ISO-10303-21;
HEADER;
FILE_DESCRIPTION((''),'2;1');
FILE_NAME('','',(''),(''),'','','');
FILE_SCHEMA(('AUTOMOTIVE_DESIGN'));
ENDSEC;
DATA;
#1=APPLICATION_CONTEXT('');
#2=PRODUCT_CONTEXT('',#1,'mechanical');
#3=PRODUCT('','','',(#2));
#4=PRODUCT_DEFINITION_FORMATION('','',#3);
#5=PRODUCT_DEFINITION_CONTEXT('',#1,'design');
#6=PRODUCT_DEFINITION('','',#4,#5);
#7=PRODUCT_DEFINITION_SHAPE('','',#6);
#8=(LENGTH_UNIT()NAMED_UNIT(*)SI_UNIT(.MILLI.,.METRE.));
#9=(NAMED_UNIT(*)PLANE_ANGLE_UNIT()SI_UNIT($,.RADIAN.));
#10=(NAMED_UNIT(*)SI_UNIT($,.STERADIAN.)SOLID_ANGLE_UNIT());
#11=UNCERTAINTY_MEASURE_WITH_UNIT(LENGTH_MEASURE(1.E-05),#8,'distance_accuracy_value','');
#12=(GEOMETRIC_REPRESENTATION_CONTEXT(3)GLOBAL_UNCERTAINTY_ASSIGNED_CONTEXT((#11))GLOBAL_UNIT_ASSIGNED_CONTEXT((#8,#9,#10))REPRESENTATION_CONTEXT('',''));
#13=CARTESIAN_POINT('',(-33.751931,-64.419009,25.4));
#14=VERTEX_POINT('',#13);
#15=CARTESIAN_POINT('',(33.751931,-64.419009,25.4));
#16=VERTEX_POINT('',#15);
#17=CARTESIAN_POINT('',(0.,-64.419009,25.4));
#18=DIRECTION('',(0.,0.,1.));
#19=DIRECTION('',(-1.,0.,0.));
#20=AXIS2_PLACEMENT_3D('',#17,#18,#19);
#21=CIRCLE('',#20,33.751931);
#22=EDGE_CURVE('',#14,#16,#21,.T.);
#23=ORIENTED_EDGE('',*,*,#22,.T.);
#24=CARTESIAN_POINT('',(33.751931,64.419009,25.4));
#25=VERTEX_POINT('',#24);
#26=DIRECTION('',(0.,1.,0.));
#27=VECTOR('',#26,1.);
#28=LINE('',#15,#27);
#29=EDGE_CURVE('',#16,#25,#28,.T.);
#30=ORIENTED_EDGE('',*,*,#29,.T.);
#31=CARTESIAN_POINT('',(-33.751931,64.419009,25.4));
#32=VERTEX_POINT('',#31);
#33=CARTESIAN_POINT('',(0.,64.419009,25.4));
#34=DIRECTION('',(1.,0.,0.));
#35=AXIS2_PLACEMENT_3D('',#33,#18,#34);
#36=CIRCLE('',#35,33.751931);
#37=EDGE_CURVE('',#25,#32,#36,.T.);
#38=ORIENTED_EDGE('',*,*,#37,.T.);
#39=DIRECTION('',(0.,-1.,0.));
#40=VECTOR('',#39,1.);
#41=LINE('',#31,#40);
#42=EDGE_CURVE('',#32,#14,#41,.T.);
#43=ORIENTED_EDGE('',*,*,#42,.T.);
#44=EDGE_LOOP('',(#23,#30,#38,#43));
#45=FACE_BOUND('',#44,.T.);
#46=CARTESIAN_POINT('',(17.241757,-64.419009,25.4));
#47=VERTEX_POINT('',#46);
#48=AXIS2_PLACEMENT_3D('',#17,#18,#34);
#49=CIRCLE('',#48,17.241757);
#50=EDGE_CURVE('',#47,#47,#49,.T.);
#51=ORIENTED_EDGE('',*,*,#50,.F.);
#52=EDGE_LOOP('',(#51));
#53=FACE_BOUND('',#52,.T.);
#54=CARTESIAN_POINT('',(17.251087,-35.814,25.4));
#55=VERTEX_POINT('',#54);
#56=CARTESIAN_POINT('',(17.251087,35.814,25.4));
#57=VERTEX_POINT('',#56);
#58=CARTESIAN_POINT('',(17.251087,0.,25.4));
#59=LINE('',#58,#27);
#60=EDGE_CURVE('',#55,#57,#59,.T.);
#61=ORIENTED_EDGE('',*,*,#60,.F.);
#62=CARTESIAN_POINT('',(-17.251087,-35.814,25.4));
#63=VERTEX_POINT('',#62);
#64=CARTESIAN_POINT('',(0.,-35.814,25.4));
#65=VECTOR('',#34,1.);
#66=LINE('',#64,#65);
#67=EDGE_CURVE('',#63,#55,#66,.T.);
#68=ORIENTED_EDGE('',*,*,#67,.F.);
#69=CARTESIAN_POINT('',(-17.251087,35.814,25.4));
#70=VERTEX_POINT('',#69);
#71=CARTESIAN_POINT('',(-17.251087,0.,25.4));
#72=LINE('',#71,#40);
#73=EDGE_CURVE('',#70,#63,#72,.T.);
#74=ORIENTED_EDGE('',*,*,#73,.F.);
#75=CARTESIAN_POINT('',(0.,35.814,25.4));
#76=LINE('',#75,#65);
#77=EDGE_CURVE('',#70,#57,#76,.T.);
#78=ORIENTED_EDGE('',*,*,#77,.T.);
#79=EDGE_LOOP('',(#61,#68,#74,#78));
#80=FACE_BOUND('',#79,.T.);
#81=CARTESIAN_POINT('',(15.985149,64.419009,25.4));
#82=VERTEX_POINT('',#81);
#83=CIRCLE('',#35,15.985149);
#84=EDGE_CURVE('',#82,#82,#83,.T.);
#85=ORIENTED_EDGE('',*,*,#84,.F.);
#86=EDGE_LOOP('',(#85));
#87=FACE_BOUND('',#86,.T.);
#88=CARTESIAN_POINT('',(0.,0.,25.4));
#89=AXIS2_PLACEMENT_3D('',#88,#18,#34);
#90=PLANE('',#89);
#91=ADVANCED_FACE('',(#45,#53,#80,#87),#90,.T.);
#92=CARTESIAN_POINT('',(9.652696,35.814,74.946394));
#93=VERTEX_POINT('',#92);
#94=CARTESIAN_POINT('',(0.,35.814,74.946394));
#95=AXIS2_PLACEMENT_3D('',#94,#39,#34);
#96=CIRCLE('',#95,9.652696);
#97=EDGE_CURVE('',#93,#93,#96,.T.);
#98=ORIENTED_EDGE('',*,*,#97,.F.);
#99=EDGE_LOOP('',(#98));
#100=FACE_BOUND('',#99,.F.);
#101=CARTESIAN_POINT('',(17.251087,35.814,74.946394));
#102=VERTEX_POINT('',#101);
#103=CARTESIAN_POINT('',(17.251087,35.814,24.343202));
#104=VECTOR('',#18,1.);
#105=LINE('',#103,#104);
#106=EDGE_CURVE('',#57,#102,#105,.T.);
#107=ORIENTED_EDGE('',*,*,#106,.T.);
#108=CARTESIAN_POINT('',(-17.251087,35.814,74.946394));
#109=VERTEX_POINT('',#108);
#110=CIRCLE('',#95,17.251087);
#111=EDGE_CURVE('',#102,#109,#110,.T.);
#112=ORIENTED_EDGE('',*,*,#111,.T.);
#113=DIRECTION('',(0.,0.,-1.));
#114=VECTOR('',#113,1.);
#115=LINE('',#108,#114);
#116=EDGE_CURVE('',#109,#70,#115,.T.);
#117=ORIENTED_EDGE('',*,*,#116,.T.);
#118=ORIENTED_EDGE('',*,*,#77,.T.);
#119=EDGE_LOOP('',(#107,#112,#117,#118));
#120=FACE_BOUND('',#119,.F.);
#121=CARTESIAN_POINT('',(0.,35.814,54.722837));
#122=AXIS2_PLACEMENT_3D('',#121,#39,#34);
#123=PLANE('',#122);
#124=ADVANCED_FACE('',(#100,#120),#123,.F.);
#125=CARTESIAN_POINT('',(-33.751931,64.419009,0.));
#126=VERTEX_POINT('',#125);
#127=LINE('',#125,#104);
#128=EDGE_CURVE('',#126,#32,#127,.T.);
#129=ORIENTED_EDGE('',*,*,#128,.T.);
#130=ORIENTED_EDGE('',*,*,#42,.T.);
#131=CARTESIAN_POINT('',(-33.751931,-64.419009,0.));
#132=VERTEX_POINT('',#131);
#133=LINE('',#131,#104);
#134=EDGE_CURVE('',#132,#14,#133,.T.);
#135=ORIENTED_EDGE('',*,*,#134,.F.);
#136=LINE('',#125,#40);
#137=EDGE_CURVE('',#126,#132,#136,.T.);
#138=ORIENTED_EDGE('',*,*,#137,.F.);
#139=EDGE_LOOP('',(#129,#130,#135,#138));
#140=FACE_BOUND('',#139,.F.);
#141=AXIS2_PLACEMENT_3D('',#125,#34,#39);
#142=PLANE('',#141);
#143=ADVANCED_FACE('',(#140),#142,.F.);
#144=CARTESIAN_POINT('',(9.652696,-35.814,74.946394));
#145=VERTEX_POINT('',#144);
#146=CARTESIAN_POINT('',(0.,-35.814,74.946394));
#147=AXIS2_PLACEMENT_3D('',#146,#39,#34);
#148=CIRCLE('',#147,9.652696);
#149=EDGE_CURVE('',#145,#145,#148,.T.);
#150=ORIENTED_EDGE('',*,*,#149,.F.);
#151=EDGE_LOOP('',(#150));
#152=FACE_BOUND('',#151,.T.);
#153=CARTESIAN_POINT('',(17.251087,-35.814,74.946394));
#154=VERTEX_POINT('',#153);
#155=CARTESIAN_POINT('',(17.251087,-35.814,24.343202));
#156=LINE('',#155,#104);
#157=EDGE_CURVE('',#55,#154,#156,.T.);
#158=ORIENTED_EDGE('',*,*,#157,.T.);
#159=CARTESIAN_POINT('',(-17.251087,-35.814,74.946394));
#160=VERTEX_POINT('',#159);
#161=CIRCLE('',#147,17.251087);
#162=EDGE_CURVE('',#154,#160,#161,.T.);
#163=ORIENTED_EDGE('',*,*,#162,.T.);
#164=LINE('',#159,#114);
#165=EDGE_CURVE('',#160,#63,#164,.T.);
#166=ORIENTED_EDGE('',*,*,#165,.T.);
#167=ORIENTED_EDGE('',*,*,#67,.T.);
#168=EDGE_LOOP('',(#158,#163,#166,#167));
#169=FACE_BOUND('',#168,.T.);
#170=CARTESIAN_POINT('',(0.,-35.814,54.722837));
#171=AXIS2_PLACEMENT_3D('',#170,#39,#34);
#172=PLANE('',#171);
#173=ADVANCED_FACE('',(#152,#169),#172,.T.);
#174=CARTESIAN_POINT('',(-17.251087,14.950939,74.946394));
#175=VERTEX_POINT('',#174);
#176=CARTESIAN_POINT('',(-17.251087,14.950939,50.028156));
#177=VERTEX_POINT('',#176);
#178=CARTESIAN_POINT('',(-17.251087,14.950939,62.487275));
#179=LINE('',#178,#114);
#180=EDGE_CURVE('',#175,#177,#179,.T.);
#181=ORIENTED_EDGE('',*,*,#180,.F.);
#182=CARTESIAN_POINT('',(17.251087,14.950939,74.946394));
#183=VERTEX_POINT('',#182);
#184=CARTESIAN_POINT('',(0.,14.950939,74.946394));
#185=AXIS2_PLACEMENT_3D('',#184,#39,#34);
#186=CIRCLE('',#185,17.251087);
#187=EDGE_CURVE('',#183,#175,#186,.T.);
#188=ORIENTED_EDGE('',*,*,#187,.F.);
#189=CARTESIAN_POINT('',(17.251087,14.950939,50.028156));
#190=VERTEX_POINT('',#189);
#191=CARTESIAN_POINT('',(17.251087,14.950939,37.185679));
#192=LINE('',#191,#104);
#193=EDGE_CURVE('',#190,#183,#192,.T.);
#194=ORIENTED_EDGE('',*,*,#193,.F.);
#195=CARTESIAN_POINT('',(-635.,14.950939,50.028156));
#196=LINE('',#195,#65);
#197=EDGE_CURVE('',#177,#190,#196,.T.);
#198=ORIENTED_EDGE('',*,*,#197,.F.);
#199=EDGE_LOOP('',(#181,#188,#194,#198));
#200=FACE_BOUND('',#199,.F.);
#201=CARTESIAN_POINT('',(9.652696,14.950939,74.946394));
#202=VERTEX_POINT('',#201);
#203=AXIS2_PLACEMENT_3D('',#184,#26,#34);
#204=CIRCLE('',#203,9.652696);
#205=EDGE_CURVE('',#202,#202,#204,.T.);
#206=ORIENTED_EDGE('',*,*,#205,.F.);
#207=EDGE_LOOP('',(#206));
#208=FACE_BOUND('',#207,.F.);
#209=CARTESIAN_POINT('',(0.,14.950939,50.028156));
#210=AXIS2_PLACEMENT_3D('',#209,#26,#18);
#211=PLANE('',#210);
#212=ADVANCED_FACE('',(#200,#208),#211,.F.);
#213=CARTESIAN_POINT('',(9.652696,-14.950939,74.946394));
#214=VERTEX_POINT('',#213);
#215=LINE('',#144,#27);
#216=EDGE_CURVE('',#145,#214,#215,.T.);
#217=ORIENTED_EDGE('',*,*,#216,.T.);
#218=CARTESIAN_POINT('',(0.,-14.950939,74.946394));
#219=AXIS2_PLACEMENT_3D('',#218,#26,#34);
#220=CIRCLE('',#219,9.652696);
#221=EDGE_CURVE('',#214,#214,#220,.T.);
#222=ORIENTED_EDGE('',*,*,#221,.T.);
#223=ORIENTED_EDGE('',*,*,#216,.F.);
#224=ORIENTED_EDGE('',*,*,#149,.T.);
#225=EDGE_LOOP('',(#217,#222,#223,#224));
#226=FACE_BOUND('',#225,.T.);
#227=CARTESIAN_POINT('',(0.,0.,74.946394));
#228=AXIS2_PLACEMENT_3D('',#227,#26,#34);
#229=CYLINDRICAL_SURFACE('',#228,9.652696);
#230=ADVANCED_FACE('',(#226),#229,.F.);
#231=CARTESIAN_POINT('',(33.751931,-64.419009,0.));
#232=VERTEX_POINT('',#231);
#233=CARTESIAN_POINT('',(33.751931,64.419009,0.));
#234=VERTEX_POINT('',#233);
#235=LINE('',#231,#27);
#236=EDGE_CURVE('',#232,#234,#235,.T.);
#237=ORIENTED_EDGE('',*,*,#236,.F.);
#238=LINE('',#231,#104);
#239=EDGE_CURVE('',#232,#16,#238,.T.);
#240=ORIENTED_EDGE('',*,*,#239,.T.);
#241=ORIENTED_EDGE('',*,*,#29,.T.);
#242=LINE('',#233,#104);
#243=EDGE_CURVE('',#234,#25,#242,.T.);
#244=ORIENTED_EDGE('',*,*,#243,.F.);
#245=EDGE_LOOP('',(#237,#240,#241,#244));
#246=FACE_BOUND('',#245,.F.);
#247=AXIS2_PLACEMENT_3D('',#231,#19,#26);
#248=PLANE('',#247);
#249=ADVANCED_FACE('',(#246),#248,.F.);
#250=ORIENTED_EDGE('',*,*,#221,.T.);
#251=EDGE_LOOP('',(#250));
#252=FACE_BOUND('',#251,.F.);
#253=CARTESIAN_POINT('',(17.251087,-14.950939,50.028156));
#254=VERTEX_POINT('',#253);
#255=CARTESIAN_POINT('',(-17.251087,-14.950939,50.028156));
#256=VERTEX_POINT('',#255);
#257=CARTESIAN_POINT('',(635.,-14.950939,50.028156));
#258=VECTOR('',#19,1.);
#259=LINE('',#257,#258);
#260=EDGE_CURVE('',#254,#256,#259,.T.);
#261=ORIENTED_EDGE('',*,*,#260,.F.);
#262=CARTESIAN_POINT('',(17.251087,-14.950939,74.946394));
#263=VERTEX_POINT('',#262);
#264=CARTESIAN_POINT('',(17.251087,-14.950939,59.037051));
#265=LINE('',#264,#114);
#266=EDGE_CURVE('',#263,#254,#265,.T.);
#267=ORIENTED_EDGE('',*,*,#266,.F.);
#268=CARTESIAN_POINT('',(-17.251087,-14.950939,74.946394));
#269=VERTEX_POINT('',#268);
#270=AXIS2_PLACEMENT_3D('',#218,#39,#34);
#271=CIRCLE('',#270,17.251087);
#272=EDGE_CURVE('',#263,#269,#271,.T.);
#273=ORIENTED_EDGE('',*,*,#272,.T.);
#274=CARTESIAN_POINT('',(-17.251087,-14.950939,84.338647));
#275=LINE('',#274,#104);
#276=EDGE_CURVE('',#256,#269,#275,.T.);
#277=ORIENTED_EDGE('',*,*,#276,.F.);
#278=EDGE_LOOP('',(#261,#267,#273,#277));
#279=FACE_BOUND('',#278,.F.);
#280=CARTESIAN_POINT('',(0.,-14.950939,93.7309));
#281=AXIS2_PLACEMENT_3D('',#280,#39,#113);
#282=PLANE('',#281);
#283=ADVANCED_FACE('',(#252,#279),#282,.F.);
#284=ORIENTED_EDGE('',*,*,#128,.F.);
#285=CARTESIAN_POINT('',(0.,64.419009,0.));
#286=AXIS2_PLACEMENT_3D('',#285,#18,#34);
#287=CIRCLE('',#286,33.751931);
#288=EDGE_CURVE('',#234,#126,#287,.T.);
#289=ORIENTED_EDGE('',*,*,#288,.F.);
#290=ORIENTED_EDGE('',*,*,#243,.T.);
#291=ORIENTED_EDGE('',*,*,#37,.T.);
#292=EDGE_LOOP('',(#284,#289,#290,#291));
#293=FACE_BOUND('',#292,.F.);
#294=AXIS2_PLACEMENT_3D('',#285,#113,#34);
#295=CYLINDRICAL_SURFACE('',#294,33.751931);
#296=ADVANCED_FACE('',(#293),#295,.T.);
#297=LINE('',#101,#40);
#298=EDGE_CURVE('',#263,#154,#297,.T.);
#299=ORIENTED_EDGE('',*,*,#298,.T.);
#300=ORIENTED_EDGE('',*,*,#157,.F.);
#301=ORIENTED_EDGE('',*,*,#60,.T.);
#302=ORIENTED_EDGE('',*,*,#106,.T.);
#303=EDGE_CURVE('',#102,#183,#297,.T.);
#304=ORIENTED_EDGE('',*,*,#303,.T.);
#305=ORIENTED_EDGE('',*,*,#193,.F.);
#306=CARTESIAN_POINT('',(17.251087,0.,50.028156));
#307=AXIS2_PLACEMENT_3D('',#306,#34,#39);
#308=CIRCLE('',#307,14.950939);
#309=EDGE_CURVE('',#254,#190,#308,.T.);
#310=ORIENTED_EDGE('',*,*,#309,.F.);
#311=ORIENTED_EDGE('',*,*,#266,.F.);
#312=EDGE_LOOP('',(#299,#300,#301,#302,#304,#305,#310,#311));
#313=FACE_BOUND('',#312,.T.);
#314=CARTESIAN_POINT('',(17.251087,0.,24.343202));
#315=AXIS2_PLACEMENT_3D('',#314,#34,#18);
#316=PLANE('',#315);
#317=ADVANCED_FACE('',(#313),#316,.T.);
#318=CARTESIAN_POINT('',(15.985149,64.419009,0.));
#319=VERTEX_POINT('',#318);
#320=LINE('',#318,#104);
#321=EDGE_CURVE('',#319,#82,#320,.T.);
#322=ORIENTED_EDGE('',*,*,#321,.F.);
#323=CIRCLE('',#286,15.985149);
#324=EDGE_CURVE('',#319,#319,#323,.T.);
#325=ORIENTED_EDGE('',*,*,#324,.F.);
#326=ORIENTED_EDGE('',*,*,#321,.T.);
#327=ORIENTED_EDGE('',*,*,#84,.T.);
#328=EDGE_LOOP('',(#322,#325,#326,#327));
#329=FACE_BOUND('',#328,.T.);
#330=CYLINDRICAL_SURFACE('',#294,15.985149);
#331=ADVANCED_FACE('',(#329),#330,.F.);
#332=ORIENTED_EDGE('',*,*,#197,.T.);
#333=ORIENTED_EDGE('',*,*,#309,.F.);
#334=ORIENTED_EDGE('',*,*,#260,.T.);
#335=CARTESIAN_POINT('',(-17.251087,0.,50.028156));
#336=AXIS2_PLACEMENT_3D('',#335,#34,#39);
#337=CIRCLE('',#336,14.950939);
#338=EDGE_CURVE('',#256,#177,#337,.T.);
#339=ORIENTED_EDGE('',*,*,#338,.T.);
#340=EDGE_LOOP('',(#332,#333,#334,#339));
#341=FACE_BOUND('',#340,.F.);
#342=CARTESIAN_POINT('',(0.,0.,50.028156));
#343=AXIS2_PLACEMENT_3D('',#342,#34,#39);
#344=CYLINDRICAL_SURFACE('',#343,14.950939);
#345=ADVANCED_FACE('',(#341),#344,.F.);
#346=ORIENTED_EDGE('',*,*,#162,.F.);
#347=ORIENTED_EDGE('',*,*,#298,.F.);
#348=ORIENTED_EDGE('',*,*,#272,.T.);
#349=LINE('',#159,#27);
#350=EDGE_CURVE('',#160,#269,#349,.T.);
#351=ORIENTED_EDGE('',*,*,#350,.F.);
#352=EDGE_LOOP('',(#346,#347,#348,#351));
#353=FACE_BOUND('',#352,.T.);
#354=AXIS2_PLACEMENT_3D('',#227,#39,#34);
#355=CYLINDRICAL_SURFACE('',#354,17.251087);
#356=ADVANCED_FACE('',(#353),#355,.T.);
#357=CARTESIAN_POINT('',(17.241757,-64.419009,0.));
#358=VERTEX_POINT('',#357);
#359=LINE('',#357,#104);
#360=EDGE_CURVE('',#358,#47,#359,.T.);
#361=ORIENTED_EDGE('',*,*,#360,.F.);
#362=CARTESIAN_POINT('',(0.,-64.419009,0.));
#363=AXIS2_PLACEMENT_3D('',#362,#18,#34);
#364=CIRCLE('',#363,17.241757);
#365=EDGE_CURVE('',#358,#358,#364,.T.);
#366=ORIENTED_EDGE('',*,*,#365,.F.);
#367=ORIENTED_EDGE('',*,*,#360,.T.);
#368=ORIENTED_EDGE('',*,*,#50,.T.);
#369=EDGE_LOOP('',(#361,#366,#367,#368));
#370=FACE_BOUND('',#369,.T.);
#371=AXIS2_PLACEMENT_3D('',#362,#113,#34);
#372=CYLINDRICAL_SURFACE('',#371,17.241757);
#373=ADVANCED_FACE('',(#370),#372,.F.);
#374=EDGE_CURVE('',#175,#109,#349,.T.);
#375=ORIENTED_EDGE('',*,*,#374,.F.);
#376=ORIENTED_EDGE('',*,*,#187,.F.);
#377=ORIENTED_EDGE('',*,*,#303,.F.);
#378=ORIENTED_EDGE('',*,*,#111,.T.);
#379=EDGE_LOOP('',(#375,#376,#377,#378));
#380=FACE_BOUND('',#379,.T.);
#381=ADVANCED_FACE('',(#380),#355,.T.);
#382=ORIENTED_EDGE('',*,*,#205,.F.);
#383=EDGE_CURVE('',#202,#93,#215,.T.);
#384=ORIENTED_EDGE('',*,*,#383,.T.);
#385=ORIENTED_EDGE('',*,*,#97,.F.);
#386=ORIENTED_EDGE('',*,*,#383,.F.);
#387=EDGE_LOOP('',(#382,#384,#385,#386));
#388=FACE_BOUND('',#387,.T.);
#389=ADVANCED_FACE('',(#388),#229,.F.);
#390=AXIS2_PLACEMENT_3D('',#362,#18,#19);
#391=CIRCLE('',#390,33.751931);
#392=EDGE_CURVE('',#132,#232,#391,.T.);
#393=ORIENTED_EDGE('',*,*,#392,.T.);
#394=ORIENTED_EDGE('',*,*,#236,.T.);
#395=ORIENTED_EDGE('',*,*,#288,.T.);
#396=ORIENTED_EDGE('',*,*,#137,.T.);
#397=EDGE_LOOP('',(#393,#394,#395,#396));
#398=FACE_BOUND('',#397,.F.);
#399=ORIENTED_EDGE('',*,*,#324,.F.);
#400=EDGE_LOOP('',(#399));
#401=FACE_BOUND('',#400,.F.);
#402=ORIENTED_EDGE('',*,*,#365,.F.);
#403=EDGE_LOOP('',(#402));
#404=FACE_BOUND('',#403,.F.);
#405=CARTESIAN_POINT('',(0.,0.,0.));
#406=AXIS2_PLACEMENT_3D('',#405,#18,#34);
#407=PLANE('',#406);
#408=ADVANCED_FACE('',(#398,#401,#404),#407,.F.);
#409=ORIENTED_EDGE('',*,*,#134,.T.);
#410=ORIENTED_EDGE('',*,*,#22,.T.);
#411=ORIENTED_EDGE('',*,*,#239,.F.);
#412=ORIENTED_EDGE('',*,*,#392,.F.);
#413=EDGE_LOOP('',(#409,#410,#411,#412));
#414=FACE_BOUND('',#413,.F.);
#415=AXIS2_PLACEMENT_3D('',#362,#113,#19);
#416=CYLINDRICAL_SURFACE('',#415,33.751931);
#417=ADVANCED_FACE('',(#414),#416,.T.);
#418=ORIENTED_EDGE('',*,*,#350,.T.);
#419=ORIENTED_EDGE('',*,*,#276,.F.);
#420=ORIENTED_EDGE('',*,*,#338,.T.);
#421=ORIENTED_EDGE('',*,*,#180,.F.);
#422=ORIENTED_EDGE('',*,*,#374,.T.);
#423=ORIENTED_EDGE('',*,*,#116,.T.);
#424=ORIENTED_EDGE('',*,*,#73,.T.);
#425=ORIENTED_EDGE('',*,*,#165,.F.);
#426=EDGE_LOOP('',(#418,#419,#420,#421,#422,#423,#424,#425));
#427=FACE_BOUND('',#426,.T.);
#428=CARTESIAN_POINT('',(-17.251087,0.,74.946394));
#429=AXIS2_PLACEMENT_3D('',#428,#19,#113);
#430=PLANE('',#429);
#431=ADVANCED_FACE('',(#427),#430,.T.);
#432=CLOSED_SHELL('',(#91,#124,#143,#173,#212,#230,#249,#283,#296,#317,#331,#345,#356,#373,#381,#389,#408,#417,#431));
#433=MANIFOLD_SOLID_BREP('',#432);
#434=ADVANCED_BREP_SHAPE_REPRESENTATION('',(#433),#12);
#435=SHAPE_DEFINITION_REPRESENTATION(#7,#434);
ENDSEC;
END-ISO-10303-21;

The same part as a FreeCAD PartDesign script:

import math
import FreeCAD as App
import Part
import Sketcher

V = App.Vector
Q = App.Units.Quantity

doc = App.newDocument("Part")
body = doc.addObject("PartDesign::Body", "Body")

sketch1 = body.newObject("Sketcher::SketchObject", "Sketch")
sketch1.AttachmentSupport = (doc.getObject("XY_Plane"), [""])
sketch1.MapMode = "FlatFace"
sketch1.addGeometry(Part.ArcOfCircle(Part.Circle(V(0, -64, 0), V(0, 0, 1), 34), math.radians(180), math.radians(360)), False)
sketch1.addGeometry(Part.LineSegment(V(34, -64, 0), V(34, 64, 0)), False)
sketch1.addGeometry(Part.ArcOfCircle(Part.Circle(V(0, 64, 0), V(0, 0, 1), 34), math.radians(0), math.radians(180)), False)
sketch1.addGeometry(Part.LineSegment(V(-34, 64, 0), V(-34, -64, 0)), False)
sketch1.addGeometry(Part.Circle(V(0, -64, 0), V(0, 0, 1), 17), False)
sketch1.addGeometry(Part.Circle(V(0, 64, 0), V(0, 0, 1), 16), False)
sketch1.addConstraint(Sketcher.Constraint("Tangent", 0, 2, 1, 1))
sketch1.addConstraint(Sketcher.Constraint("Tangent", 1, 2, 2, 1))
sketch1.addConstraint(Sketcher.Constraint("Tangent", 2, 2, 3, 1))
sketch1.addConstraint(Sketcher.Constraint("Tangent", 3, 2, 0, 1))
sketch1.addConstraint(Sketcher.Constraint("Vertical", 1))
sketch1.addConstraint(Sketcher.Constraint("Vertical", 3))
sketch1.addConstraint(Sketcher.Constraint("Coincident", 4, 3, 0, 3))
sketch1.addConstraint(Sketcher.Constraint("Coincident", 5, 3, 2, 3))
sketch1.addConstraint(Sketcher.Constraint("Symmetric", 0, 3, 2, 3, -1, 1))
sketch1.addConstraint(Sketcher.Constraint("Diameter", 5, 31.970298))
sketch1.addConstraint(Sketcher.Constraint("Radius", 0, 33.751931))
sketch1.addConstraint(Sketcher.Constraint("Diameter", 4, 34.483513))
sketch1.addConstraint(Sketcher.Constraint("DistanceY", 1, 1, 1, 2, 128.838018))
pad1 = body.newObject("PartDesign::Pad", "Pad")
pad1.Profile = sketch1
pad1.Length = Q("1 in")

sketch2 = body.newObject("Sketcher::SketchObject", "Sketch001")
sketch2.AttachmentSupport = (doc.getObject("XZ_Plane"), [""])
sketch2.MapMode = "FlatFace"
sketch2.addGeometry(Part.LineSegment(V(-17, 24, 0), V(17, 24, 0)), False)
sketch2.addGeometry(Part.LineSegment(V(17, 24, 0), V(17, 75, 0)), False)
sketch2.addGeometry(Part.ArcOfCircle(Part.Circle(V(0, 75, 0), V(0, 0, 1), 17), math.radians(0), math.radians(180)), False)
sketch2.addGeometry(Part.LineSegment(V(-17, 75, 0), V(-17, 24, 0)), False)
sketch2.addGeometry(Part.Circle(V(0, 75, 0), V(0, 0, 1), 10), False)
sketch2.addConstraint(Sketcher.Constraint("Coincident", 0, 2, 1, 1))
sketch2.addConstraint(Sketcher.Constraint("Tangent", 1, 2, 2, 1))
sketch2.addConstraint(Sketcher.Constraint("Tangent", 2, 2, 3, 1))
sketch2.addConstraint(Sketcher.Constraint("Coincident", 3, 2, 0, 1))
sketch2.addConstraint(Sketcher.Constraint("Horizontal", 0))
sketch2.addConstraint(Sketcher.Constraint("Vertical", 1))
sketch2.addConstraint(Sketcher.Constraint("Vertical", 3))
sketch2.addConstraint(Sketcher.Constraint("Coincident", 4, 3, 2, 3))
sketch2.addConstraint(Sketcher.Constraint("PointOnObject", 2, 3, -2))
sketch2.addConstraint(Sketcher.Constraint("Diameter", 4, 19.305392))
sketch2.addConstraint(Sketcher.Constraint("Radius", 2, 17.251087))
sketch2.addConstraint(Sketcher.Constraint("DistanceY", -1, 1, 0, 2, 24.343202))
sketch2.addConstraint(Sketcher.Constraint("DistanceY", 1, 1, 1, 2, 50.603192))
pad2 = body.newObject("PartDesign::Pad", "Pad001")
pad2.Profile = sketch2
pad2.Length = Q("2.82 in")
pad2.Midplane = True

sketch3 = body.newObject("Sketcher::SketchObject", "Sketch002")
sketch3.AttachmentSupport = (doc.getObject("YZ_Plane"), [""])
sketch3.MapMode = "FlatFace"
sketch3.addGeometry(Part.ArcOfCircle(Part.Circle(V(0, 50, 0), V(0, 0, 1), 15), math.radians(180), math.radians(360)), False)
sketch3.addGeometry(Part.LineSegment(V(15, 50, 0), V(15, 94, 0)), False)
sketch3.addGeometry(Part.LineSegment(V(15, 94, 0), V(-15, 94, 0)), False)
sketch3.addGeometry(Part.LineSegment(V(-15, 94, 0), V(-15, 50, 0)), False)
sketch3.addConstraint(Sketcher.Constraint("Tangent", 0, 2, 1, 1))
sketch3.addConstraint(Sketcher.Constraint("Coincident", 1, 2, 2, 1))
sketch3.addConstraint(Sketcher.Constraint("Coincident", 2, 2, 3, 1))
sketch3.addConstraint(Sketcher.Constraint("Tangent", 3, 2, 0, 1))
sketch3.addConstraint(Sketcher.Constraint("Vertical", 1))
sketch3.addConstraint(Sketcher.Constraint("Horizontal", 2))
sketch3.addConstraint(Sketcher.Constraint("Vertical", 3))
sketch3.addConstraint(Sketcher.Constraint("PointOnObject", 0, 3, -2))
sketch3.addConstraint(Sketcher.Constraint("Radius", 0, 14.950939))
sketch3.addConstraint(Sketcher.Constraint("DistanceY", -1, 1, 1, 2, 93.7309))
sketch3.addConstraint(Sketcher.Constraint("DistanceY", 1, 1, 1, 2, 43.702744))
pocket1 = body.newObject("PartDesign::Pocket", "Pocket")
pocket1.Profile = sketch3
pocket1.Length = Q("50 in")
pocket1.Midplane = True

doc.recompute()
